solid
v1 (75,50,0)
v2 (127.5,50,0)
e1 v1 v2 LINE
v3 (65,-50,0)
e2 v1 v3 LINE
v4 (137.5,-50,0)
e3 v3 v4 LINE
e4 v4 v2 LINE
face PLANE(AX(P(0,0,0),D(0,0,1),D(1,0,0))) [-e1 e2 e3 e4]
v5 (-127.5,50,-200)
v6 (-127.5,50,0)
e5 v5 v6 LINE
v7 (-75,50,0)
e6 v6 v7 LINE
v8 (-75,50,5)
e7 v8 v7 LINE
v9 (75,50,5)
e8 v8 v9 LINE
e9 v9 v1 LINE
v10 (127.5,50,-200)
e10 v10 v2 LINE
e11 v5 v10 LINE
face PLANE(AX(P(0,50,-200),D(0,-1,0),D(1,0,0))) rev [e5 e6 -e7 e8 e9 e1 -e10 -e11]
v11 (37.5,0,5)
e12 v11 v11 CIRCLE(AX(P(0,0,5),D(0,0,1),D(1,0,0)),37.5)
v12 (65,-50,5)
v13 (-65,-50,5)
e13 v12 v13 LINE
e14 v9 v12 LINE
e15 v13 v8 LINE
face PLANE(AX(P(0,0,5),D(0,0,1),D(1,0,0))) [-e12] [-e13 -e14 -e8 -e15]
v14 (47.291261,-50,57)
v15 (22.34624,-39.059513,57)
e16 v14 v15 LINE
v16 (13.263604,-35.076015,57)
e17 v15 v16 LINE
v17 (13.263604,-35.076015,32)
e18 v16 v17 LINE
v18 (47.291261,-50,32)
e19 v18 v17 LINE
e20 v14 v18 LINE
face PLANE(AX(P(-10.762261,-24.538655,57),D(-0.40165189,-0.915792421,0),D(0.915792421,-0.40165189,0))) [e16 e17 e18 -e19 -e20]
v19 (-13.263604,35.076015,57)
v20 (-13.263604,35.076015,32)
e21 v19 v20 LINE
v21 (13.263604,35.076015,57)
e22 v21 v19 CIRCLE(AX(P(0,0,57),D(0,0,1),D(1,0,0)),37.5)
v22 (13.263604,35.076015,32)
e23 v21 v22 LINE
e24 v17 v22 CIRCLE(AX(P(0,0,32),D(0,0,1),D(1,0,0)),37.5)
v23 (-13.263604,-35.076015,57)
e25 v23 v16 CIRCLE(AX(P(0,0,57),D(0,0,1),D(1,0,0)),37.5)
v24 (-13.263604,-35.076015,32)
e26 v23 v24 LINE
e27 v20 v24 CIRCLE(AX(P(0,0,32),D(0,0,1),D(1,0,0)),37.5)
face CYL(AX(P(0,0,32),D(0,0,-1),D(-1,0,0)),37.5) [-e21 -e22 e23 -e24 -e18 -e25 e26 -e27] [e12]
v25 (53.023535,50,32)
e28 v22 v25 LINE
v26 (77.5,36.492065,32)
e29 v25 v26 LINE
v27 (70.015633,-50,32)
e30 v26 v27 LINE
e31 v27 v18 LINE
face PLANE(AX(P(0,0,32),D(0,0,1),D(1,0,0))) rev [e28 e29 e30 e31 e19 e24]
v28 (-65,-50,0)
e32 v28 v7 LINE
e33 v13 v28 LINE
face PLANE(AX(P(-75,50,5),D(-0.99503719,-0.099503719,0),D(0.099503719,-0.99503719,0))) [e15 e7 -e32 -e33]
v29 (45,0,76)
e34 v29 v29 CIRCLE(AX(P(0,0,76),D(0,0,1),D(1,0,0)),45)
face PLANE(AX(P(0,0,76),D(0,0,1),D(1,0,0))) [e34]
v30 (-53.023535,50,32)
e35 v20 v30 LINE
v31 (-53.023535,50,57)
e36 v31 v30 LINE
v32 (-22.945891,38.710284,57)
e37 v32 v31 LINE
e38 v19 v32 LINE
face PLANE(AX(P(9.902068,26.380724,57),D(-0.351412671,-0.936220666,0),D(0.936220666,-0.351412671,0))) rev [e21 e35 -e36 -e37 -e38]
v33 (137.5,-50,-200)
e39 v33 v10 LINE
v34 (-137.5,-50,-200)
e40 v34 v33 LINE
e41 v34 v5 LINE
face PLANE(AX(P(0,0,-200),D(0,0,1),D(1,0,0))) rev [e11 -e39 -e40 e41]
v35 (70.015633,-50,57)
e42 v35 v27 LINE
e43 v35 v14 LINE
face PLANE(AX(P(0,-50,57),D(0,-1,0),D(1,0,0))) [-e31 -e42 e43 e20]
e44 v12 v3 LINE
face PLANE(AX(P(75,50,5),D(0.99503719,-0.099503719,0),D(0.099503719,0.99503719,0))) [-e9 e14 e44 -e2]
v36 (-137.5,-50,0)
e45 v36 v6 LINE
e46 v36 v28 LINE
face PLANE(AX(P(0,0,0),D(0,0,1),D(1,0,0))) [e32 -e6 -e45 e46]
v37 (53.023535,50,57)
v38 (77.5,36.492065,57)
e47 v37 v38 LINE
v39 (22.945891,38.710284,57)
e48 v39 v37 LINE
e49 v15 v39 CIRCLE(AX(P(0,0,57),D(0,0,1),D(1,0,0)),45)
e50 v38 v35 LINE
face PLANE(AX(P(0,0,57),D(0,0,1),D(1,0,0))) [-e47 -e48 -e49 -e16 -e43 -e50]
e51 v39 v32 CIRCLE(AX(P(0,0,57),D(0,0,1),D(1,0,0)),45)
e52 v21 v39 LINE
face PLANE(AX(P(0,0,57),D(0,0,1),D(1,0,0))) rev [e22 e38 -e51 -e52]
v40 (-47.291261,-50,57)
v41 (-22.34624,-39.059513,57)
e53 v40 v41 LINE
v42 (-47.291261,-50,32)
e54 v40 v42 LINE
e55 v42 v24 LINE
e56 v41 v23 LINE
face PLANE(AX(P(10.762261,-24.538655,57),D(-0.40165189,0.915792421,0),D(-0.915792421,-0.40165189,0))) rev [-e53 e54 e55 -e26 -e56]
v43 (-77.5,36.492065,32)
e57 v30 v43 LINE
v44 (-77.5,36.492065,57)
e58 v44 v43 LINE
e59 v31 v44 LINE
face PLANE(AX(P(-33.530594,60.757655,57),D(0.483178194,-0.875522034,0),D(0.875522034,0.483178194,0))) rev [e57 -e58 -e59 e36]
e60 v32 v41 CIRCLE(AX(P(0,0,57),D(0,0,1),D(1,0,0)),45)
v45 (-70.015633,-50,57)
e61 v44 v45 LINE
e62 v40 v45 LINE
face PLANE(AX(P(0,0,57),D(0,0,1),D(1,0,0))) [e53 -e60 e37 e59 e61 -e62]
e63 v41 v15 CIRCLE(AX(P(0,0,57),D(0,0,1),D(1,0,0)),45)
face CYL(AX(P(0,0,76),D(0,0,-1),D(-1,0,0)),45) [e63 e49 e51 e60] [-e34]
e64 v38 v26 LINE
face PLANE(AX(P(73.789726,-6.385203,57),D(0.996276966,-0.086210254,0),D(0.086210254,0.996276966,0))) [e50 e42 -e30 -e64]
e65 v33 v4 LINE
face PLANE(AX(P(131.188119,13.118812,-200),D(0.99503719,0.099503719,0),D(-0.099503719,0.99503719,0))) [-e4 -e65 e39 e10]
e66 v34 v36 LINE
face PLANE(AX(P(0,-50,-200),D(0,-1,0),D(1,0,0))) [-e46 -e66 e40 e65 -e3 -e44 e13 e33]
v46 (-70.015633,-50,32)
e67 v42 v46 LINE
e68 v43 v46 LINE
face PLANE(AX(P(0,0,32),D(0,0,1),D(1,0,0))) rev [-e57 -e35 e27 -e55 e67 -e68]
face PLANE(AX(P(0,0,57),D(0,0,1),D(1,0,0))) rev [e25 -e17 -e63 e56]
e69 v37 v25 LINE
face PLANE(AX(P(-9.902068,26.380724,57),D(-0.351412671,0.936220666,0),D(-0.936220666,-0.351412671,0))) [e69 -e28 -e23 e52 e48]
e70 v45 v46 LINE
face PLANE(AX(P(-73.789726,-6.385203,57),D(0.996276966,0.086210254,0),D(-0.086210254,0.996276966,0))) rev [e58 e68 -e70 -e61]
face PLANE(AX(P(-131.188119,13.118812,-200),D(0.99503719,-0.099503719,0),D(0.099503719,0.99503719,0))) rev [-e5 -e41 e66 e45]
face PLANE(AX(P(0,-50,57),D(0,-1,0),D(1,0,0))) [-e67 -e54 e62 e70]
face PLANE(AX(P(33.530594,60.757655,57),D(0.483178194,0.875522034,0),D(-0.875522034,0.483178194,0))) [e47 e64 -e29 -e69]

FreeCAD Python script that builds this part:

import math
import FreeCAD as App
import Part
import Sketcher

V = App.Vector
Q = App.Units.Quantity

doc = App.newDocument("Part")
body = doc.addObject("PartDesign::Body", "Body")

sketch1 = body.newObject("Sketcher::SketchObject", "Sketch")
sketch1.AttachmentSupport = (doc.getObject("XY_Plane"), [""])
sketch1.MapMode = "FlatFace"
sketch1.addGeometry(Part.LineSegment(V(-128, 50, 0), V(-138, -50, 0)), False)
sketch1.addGeometry(Part.LineSegment(V(-138, -50, 0), V(138, -50, 0)), False)
sketch1.addGeometry(Part.LineSegment(V(138, -50, 0), V(128, 50, 0)), False)
sketch1.addGeometry(Part.LineSegment(V(128, 50, 0), V(-128, 50, 0)), False)
sketch1.addConstraint(Sketcher.Constraint("Coincident", 0, 2, 1, 1))
sketch1.addConstraint(Sketcher.Constraint("Coincident", 1, 2, 2, 1))
sketch1.addConstraint(Sketcher.Constraint("Coincident", 2, 2, 3, 1))
sketch1.addConstraint(Sketcher.Constraint("Coincident", 3, 2, 0, 1))
sketch1.addConstraint(Sketcher.Constraint("Horizontal", 1))
sketch1.addConstraint(Sketcher.Constraint("Horizontal", 3))
sketch1.addConstraint(Sketcher.Constraint("Equal", 0, 2))
sketch1.addConstraint(Sketcher.Constraint("DistanceX", 1, 1, 1, 2, Q("275 mm")))
sketch1.addConstraint(Sketcher.Constraint("DistanceX", 3, 2, 3, 1, Q("255 mm")))
sketch1.addConstraint(Sketcher.Constraint("DistanceY", 0, 2, -1, 1, Q("50 mm")))
sketch1.addConstraint(Sketcher.Constraint("DistanceY", -1, 1, 2, 2, Q("50 mm")))
sketch1.addConstraint(Sketcher.Constraint("DistanceX", 0, 2, -1, 1, Q("137.5 mm")))
pad1 = body.newObject("PartDesign::Pad", "Pad")
pad1.Profile = sketch1
pad1.Length = 200
pad1.Reversed = True

sketch2 = body.newObject("Sketcher::SketchObject", "Sketch001")
sketch2.AttachmentSupport = (doc.getObject("XY_Plane"), [""])
sketch2.MapMode = "FlatFace"
sketch2.addGeometry(Part.LineSegment(V(75, 50, 0), V(65, -50, 0)), False)
sketch2.addGeometry(Part.LineSegment(V(65, -50, 0), V(-65, -50, 0)), False)
sketch2.addGeometry(Part.LineSegment(V(-65, -50, 0), V(-75, 50, 0)), False)
sketch2.addGeometry(Part.LineSegment(V(-75, 50, 0), V(75, 50, 0)), False)
sketch2.addConstraint(Sketcher.Constraint("Coincident", 0, 2, 1, 1))
sketch2.addConstraint(Sketcher.Constraint("Coincident", 1, 2, 2, 1))
sketch2.addConstraint(Sketcher.Constraint("Coincident", 2, 2, 3, 1))
sketch2.addConstraint(Sketcher.Constraint("Coincident", 3, 2, 0, 1))
sketch2.addConstraint(Sketcher.Constraint("Horizontal", 1))
sketch2.addConstraint(Sketcher.Constraint("Horizontal", 3))
sketch2.addConstraint(Sketcher.Constraint("Equal", 0, 2))
sketch2.addConstraint(Sketcher.Constraint("DistanceX", 1, 2, 1, 1, Q("130 mm")))
sketch2.addConstraint(Sketcher.Constraint("DistanceX", 3, 1, 3, 2, Q("150 mm")))
sketch2.addConstraint(Sketcher.Constraint("DistanceX", -1, 1, 0, 2, Q("65 mm")))
sketch2.addConstraint(Sketcher.Constraint("DistanceY", 0, 2, -1, 1, Q("50 mm")))
sketch2.addConstraint(Sketcher.Constraint("DistanceY", -1, 1, 2, 2, Q("50 mm")))
pad2 = body.newObject("PartDesign::Pad", "Pad001")
pad2.Profile = sketch2
pad2.Length = 5

sketch3 = body.newObject("Sketcher::SketchObject", "Sketch002")
sketch3.AttachmentSupport = (doc.getObject("XY_Plane"), [""])
sketch3.MapMode = "FlatFace"
sketch3.AttachmentOffset = App.Placement(V(0, 0, 5), App.Rotation())
sketch3.addGeometry(Part.Circle(V(0, 0, 0), V(0, 0, 1), 38), False)
sketch3.addConstraint(Sketcher.Constraint("Coincident", 0, 3, -1, 1))
sketch3.addConstraint(Sketcher.Constraint("Diameter", 0, Q("75 mm")))
pad3 = body.newObject("PartDesign::Pad", "Pad002")
pad3.Profile = sketch3
pad3.Length = 27

sketch4 = body.newObject("Sketcher::SketchObject", "Sketch003")
sketch4.AttachmentSupport = (doc.getObject("XY_Plane"), [""])
sketch4.MapMode = "FlatFace"
sketch4.AttachmentOffset = App.Placement(V(0, 0, 32), App.Rotation())
sketch4.addGeometry(Part.LineSegment(V(-13, 35, 0), V(-53, 50, 0)), False)
sketch4.addGeometry(Part.LineSegment(V(-53, 50, 0), V(-78, 36, 0)), False)
sketch4.addGeometry(Part.LineSegment(V(-78, 36, 0), V(-70, -50, 0)), False)
sketch4.addGeometry(Part.LineSegment(V(-70, -50, 0), V(-47, -50, 0)), False)
sketch4.addGeometry(Part.LineSegment(V(-47, -50, 0), V(-13, -35, 0)), False)
sketch4.addGeometry(Part.ArcOfCircle(Part.Circle(V(0, 0, 0), V(0, 0, 1), 38), math.radians(-111), math.radians(-69)), False)
sketch4.addGeometry(Part.LineSegment(V(13, -35, 0), V(47, -50, 0)), False)
sketch4.addGeometry(Part.LineSegment(V(47, -50, 0), V(70, -50, 0)), False)
sketch4.addGeometry(Part.LineSegment(V(70, -50, 0), V(78, 36, 0)), False)
sketch4.addGeometry(Part.LineSegment(V(78, 36, 0), V(53, 50, 0)), False)
sketch4.addGeometry(Part.LineSegment(V(53, 50, 0), V(13, 35, 0)), False)
sketch4.addGeometry(Part.ArcOfCircle(Part.Circle(V(0, 0, 0), V(0, 0, 1), 38), math.radians(69), math.radians(111)), False)
sketch4.addConstraint(Sketcher.Constraint("Coincident", 0, 2, 1, 1))
sketch4.addConstraint(Sketcher.Constraint("Coincident", 1, 2, 2, 1))
sketch4.addConstraint(Sketcher.Constraint("Coincident", 2, 2, 3, 1))
sketch4.addConstraint(Sketcher.Constraint("Coincident", 3, 2, 4, 1))
sketch4.addConstraint(Sketcher.Constraint("Coincident", 4, 2, 5, 1))
sketch4.addConstraint(Sketcher.Constraint("Coincident", 5, 2, 6, 1))
sketch4.addConstraint(Sketcher.Constraint("Coincident", 6, 2, 7, 1))
sketch4.addConstraint(Sketcher.Constraint("Coincident", 7, 2, 8, 1))
sketch4.addConstraint(Sketcher.Constraint("Coincident", 8, 2, 9, 1))
sketch4.addConstraint(Sketcher.Constraint("Coincident", 9, 2, 10, 1))
sketch4.addConstraint(Sketcher.Constraint("Coincident", 10, 2, 11, 1))
sketch4.addConstraint(Sketcher.Constraint("Coincident", 11, 2, 0, 1))
sketch4.addConstraint(Sketcher.Constraint("Horizontal", 3))
sketch4.addConstraint(Sketcher.Constraint("Horizontal", 7))
sketch4.addConstraint(Sketcher.Constraint("Coincident", 5, 3, -1, 1))
sketch4.addConstraint(Sketcher.Constraint("Coincident", 11, 3, -1, 1))
sketch4.addConstraint(Sketcher.Constraint("Equal", 5, 11))
sketch4.addConstraint(Sketcher.Constraint("Symmetric", 3, 2, 6, 2, -2))
sketch4.addConstraint(Sketcher.Constraint("Symmetric", 1, 2, 8, 2, -2))
sketch4.addConstraint(Sketcher.Constraint("Symmetric", 0, 2, 9, 2, -2))
sketch4.addConstraint(Sketcher.Constraint("Horizontal", 4, 2, 5, 2))
sketch4.addConstraint(Sketcher.Constraint("Horizontal", 10, 2, 11, 2))
sketch4.addConstraint(Sketcher.Constraint("Vertical", 5, 2, 10, 2))
sketch4.addConstraint(Sketcher.Constraint("Equal", 3, 7))
sketch4.addConstraint(Sketcher.Constraint("Radius", 5, Q("37.5 mm")))
sketch4.addConstraint(Sketcher.Constraint("DistanceY", -1, 1, 0, 2, Q("50 mm")))
sketch4.addConstraint(Sketcher.Constraint("DistanceY", 2, 2, -1, 1, Q("50 mm")))
sketch4.addConstraint(Sketcher.Constraint("DistanceX", 1, 2, -1, 1, Q("77.5 mm")))
sketch4.addConstraint(Sketcher.Constraint("DistanceX", 3, 1, 3, 2, Q("22.724372 mm")))
sketch4.addConstraint(Sketcher.Constraint("Distance", 2, Q("86.815282 mm")))
sketch4.addConstraint(Sketcher.Constraint("DistanceX", 3, 2, -1, 1, Q("47.291261 mm")))
sketch4.addConstraint(Sketcher.Constraint("DistanceX", 2, 2, 4, 2, Q("56.752029 mm")))
sketch4.addConstraint(Sketcher.Constraint("DistanceX", 0, 2, 4, 2, Q("39.759931 mm")))
pad4 = body.newObject("PartDesign::Pad", "Pad003")
pad4.Profile = sketch4
pad4.Length = 25

sketch5 = body.newObject("Sketcher::SketchObject", "Sketch004")
sketch5.AttachmentSupport = (doc.getObject("XY_Plane"), [""])
sketch5.MapMode = "FlatFace"
sketch5.AttachmentOffset = App.Placement(V(0, 0, 57), App.Rotation())
sketch5.addGeometry(Part.Circle(V(0, 0, 0), V(0, 0, 1), 45), False)
sketch5.addConstraint(Sketcher.Constraint("Coincident", 0, 3, -1, 1))
sketch5.addConstraint(Sketcher.Constraint("Diameter", 0, Q("90 mm")))
pad5 = body.newObject("PartDesign::Pad", "Pad004")
pad5.Profile = sketch5
pad5.Length = 19

doc.recompute()
